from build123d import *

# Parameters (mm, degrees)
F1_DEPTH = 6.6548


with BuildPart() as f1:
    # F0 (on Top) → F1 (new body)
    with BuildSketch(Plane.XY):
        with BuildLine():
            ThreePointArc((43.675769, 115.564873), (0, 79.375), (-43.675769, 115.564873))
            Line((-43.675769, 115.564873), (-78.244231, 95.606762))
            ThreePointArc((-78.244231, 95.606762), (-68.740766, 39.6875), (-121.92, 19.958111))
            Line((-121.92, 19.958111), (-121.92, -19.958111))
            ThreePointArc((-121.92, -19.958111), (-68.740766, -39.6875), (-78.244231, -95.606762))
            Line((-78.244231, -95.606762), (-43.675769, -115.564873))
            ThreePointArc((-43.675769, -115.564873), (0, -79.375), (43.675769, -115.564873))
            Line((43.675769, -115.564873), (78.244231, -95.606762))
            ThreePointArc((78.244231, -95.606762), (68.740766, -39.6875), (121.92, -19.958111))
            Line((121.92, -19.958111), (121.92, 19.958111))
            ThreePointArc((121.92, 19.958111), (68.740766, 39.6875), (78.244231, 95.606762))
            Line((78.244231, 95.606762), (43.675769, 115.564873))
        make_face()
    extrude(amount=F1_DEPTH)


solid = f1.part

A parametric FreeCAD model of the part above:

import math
import FreeCAD as App
import Part
import Sketcher
from FreeCAD import Vector
Q = App.Units.Quantity

doc = App.newDocument("Part")
body = doc.addObject("PartDesign::Body", "Body")

# Sketch on XY plane
sketch1 = body.newObject("Sketcher::SketchObject", "Sketch")
sketch1.AttachmentSupport = (doc.getObject("XY_Plane"), [""])
sketch1.MapMode = "FlatFace"
sketch1.addGeometry([
    Part.ArcOfCircle(Part.Circle(Vector(0, 124, 0), Vector(0, 0, 1), 44), math.radians(-169), math.radians(-11)),  # 0
    Part.LineSegment(Vector(-44, 116, 0), Vector(-78, 96, 0)),  # 1
    Part.ArcOfCircle(Part.Circle(Vector(-107, 62, 0), Vector(0, 0, 1), 44), math.radians(-109), math.radians(49)),  # 2
    Part.LineSegment(Vector(-122, 20, 0), Vector(-122, -20, 0)),  # 3
    Part.ArcOfCircle(Part.Circle(Vector(-107, -62, 0), Vector(0, 0, 1), 44), math.radians(-49), math.radians(109)),  # 4
    Part.LineSegment(Vector(-78, -96, 0), Vector(-44, -116, 0)),  # 5
    Part.ArcOfCircle(Part.Circle(Vector(0, -124, 0), Vector(0, 0, 1), 44), math.radians(11), math.radians(169)),  # 6
    Part.LineSegment(Vector(44, -116, 0), Vector(78, -96, 0)),  # 7
    Part.ArcOfCircle(Part.Circle(Vector(107, -62, 0), Vector(0, 0, 1), 44), math.radians(71), math.radians(229)),  # 8
    Part.LineSegment(Vector(122, -20, 0), Vector(122, 20, 0)),  # 9
    Part.ArcOfCircle(Part.Circle(Vector(107, 62, 0), Vector(0, 0, 1), 44), math.radians(131), math.radians(289)),  # 10
    Part.LineSegment(Vector(78, 96, 0), Vector(44, 116, 0)),  # 11
], False)
sketch1.addConstraint([
    Sketcher.Constraint("Coincident", 0, 1, 1, 1),
    Sketcher.Constraint("Coincident", 1, 2, 2, 2),
    Sketcher.Constraint("Coincident", 2, 1, 3, 1),
    Sketcher.Constraint("Coincident", 3, 2, 4, 2),
    Sketcher.Constraint("Coincident", 4, 1, 5, 1),
    Sketcher.Constraint("Coincident", 5, 2, 6, 2),
    Sketcher.Constraint("Coincident", 6, 1, 7, 1),
    Sketcher.Constraint("Coincident", 7, 2, 8, 2),
    Sketcher.Constraint("Coincident", 8, 1, 9, 1),
    Sketcher.Constraint("Coincident", 9, 2, 10, 2),
    Sketcher.Constraint("Coincident", 10, 1, 11, 1),
    Sketcher.Constraint("Coincident", 11, 2, 0, 2),
    Sketcher.Constraint("Vertical", 3),
    Sketcher.Constraint("Vertical", 9),
    Sketcher.Constraint("Equal", 0, 2),
    Sketcher.Constraint("Equal", 2, 4),
    Sketcher.Constraint("Equal", 4, 6),
    Sketcher.Constraint("Equal", 6, 8),
    Sketcher.Constraint("Equal", 8, 10),
    Sketcher.Constraint("Symmetric", 0, 3, 6, 3, -1, 1),
    Sketcher.Constraint("Symmetric", 2, 3, 8, 3, -1, 1),
    Sketcher.Constraint("Symmetric", 4, 3, 10, 3, -1, 1),
    Sketcher.Constraint("Symmetric", 4, 3, 8, 3, -2),
    Sketcher.Constraint("Symmetric", 5, 2, 6, 1, -2),
    Sketcher.Constraint("Parallel", 1, 7),
    Sketcher.Constraint("Parallel", 5, 11),
    Sketcher.Constraint("Horizontal", 4, 1, 7, 2),
    Sketcher.Constraint("Horizontal", 3, 2, 8, 1),
    Sketcher.Constraint("Horizontal", 1, 2, 10, 1),
    Sketcher.Constraint("Vertical", 1, 2, 4, 1),
    Sketcher.Constraint("Radius", 0, Q("1.75 in")),
    Sketcher.Constraint("Angle", 1, Q("-150 deg")),
    Sketcher.Constraint("DistanceX", 2, 1, -1, 1, Q("4.8 in")),
    Sketcher.Constraint("DistanceX", 4, 1, 6, 1, Q("4.8 in")),
    Sketcher.Constraint("DistanceY", 6, 3, 0, 3, Q("9.75 in")),
    Sketcher.Constraint("DistanceY", -1, 1, 2, 3, Q("2.4375 in")),
    Sketcher.Constraint("DistanceY", 3, 2, 3, 1, 39.916222),
])
pad1 = body.newObject("PartDesign::Pad", "Pad")
pad1.Profile = sketch1
pad1.Length = Q("0.262 in")

doc.recompute()
